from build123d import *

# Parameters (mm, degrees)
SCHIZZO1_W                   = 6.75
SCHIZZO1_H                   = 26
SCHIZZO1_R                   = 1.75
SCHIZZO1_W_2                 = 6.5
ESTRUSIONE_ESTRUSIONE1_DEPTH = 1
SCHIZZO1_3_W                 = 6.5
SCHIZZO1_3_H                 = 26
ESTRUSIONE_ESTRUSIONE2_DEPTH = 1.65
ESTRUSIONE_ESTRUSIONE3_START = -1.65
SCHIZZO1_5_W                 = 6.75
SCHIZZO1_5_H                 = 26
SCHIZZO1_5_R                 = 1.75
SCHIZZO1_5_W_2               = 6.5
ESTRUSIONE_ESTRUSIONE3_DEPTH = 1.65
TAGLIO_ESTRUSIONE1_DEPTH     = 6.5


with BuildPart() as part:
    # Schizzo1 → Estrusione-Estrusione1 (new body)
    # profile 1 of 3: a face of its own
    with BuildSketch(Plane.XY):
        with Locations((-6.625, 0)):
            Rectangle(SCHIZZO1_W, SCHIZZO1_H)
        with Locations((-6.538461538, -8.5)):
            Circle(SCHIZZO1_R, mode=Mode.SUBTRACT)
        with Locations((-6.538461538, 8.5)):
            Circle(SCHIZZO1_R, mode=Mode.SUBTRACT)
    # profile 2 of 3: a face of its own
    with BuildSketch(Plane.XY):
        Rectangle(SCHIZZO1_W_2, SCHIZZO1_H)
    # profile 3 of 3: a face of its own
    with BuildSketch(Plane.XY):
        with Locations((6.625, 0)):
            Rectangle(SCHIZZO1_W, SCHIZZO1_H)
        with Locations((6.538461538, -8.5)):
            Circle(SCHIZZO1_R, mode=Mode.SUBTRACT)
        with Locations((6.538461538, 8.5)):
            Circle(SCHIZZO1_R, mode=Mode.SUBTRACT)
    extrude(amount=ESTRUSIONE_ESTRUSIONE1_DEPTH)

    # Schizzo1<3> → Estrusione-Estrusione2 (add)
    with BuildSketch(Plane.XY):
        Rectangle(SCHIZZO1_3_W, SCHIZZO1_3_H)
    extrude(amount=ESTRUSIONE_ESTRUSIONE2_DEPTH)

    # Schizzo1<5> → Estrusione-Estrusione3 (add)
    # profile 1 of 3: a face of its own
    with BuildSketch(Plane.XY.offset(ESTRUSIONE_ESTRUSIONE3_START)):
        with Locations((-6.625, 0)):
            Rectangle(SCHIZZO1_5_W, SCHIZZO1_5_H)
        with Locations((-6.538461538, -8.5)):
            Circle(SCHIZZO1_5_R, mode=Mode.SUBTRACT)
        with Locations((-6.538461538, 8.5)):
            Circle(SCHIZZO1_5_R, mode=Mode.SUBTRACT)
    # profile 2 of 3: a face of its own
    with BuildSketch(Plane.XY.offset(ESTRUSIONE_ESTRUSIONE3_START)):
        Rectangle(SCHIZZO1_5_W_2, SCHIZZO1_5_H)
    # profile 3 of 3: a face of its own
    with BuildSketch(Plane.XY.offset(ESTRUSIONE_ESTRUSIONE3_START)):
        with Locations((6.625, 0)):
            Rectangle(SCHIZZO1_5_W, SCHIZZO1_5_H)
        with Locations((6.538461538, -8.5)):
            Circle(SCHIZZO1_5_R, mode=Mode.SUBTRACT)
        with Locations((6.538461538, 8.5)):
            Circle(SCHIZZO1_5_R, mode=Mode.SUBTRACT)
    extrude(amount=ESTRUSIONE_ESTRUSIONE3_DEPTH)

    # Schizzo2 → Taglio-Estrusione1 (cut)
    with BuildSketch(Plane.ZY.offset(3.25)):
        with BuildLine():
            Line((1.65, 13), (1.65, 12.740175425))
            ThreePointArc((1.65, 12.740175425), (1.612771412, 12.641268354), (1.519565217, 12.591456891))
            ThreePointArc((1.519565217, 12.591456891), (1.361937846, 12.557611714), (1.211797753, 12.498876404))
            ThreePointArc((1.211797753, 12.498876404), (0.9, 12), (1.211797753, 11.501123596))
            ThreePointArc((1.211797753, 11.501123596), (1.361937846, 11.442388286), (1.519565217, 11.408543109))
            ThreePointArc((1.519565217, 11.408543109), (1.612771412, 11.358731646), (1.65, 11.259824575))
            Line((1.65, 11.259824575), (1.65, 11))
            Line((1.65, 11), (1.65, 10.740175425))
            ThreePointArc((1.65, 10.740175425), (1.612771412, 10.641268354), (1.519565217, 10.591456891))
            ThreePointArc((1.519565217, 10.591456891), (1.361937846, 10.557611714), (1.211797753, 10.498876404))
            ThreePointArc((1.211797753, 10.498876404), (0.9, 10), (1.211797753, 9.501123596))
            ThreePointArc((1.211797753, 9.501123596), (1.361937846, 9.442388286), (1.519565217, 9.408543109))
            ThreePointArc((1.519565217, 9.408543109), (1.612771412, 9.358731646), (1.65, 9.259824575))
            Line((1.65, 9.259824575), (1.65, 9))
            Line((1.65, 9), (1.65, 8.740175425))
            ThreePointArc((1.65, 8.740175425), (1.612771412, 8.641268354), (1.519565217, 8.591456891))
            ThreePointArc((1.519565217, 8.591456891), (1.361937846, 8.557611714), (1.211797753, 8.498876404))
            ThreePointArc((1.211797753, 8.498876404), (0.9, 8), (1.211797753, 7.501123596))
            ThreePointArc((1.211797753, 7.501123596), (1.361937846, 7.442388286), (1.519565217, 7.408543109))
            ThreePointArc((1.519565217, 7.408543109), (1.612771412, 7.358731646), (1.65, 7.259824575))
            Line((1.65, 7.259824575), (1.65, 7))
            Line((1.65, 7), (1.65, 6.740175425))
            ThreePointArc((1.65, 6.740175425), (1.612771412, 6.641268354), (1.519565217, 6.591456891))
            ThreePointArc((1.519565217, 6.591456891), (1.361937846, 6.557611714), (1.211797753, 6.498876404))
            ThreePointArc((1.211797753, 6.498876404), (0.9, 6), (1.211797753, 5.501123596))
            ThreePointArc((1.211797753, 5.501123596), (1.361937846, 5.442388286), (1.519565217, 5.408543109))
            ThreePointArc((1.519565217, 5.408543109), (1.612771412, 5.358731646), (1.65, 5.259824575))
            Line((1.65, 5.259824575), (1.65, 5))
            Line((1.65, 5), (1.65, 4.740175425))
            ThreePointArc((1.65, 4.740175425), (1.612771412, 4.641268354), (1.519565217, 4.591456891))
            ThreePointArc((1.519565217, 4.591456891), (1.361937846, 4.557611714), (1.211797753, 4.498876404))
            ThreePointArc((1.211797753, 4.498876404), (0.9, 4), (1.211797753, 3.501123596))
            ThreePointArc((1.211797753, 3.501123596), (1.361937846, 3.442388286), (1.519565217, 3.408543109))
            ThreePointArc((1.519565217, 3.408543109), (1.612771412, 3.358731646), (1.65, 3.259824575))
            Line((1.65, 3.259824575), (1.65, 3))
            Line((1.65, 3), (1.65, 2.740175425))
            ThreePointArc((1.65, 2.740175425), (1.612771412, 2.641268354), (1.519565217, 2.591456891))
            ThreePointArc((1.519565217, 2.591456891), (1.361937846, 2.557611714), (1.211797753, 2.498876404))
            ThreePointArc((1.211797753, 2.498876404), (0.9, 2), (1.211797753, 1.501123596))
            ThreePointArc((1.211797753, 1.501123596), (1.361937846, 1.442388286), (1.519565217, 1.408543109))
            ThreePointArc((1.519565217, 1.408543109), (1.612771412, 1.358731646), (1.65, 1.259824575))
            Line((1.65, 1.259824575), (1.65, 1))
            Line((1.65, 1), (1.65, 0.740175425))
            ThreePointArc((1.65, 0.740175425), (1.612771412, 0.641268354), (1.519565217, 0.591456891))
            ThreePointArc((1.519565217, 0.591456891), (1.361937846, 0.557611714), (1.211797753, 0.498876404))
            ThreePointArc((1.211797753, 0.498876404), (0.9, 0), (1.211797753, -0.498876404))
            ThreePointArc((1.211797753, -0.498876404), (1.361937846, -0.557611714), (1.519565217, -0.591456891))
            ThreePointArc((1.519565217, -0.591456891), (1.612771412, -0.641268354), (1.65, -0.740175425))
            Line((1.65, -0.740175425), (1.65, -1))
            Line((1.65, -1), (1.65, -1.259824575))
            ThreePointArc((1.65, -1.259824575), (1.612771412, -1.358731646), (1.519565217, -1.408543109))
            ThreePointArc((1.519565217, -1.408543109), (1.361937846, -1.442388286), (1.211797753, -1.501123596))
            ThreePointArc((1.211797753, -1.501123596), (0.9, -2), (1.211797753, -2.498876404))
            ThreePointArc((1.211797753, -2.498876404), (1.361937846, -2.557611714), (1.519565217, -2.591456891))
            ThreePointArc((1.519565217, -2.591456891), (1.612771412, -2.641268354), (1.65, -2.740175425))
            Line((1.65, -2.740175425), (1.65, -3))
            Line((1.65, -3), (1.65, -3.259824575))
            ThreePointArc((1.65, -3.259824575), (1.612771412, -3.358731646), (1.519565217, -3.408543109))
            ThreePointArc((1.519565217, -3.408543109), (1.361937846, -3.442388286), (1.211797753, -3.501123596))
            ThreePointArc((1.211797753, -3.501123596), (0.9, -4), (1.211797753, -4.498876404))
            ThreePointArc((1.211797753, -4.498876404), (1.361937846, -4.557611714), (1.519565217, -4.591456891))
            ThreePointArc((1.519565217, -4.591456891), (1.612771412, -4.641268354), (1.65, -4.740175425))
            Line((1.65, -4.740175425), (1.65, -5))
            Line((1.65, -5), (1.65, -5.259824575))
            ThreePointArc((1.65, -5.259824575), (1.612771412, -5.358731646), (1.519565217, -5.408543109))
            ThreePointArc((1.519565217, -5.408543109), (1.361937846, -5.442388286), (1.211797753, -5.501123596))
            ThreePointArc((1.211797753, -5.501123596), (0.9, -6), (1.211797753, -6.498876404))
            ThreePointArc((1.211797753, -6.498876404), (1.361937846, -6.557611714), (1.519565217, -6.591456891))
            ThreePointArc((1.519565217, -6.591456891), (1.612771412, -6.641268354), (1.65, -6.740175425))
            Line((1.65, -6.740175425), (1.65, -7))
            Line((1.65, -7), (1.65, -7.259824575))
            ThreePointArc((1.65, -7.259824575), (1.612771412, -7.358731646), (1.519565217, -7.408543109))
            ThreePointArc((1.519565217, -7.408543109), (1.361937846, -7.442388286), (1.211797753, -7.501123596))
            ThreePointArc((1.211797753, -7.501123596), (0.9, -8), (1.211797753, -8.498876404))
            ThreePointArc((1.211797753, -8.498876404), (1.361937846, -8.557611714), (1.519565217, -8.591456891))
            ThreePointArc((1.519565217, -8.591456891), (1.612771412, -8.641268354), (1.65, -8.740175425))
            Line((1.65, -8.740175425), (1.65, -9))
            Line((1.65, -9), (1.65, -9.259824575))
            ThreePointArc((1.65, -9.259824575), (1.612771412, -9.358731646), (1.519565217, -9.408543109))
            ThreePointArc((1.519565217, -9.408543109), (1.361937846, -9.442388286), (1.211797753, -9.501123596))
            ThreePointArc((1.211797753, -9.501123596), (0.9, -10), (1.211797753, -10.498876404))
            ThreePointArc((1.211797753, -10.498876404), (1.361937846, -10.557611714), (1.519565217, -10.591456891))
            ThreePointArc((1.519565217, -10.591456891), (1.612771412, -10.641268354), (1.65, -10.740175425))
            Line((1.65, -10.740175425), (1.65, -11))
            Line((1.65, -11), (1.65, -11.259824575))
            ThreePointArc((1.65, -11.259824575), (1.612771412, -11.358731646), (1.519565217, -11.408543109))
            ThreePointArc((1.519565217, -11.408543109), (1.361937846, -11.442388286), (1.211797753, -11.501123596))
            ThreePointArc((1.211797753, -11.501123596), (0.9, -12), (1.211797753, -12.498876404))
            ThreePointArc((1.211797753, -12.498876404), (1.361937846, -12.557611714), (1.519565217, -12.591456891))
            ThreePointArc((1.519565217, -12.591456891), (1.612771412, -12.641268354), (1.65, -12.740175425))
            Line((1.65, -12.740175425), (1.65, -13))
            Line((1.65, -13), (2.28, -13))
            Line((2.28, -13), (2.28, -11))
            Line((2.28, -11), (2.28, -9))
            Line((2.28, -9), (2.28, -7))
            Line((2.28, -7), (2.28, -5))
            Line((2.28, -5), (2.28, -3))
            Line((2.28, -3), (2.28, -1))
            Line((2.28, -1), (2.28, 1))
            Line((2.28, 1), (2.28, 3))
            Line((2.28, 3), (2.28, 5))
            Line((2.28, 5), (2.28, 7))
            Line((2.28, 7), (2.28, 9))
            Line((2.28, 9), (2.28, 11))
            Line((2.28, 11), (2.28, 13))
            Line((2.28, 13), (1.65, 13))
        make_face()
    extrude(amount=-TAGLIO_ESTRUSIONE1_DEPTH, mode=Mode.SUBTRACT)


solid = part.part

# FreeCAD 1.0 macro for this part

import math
import FreeCAD as App
import Part
import Sketcher
Q = App.Units.Quantity


def add_polygon(sketch, points):
    """Adds a closed chain of lines whose ends are joined by coincident constraints."""
    first, n = sketch.GeometryCount, len(points)
    for a, b in zip(points, points[1:] + points[:1]):
        sketch.addGeometry(Part.LineSegment(App.Vector(*a, 0), App.Vector(*b, 0)), False)
    for i in range(n):
        sketch.addConstraint(Sketcher.Constraint("Coincident", first + i, 2, first + (i + 1) % n, 1))

doc = App.newDocument("Part")
body = doc.addObject("PartDesign::Body", "Body")

# Sketch on XY plane
sketch1 = body.newObject("Sketcher::SketchObject", "Sketch")
sketch1.AttachmentSupport = (doc.getObject("XY_Plane"), [""])
sketch1.MapMode = "FlatFace"
add_polygon(sketch1, [(-10, 13), (-10, -13), (10, -13), (10, 13)])  # lines 0-3
sketch1.addGeometry(Part.Circle(App.Vector(-6.5, -8.5, 0), App.Vector(0, 0, 1), 1.8), False)  # 4
sketch1.addGeometry(Part.Circle(App.Vector(-6.5, 8.5, 0), App.Vector(0, 0, 1), 1.8), False)  # 5
sketch1.addGeometry(Part.Circle(App.Vector(6.5, 8.5, 0), App.Vector(0, 0, 1), 1.8), False)  # 6
sketch1.addGeometry(Part.Circle(App.Vector(6.5, -8.5, 0), App.Vector(0, 0, 1), 1.8), False)  # 7
sketch1.addConstraint([
    Sketcher.Constraint("Vertical", 0),
    Sketcher.Constraint("Horizontal", 1),
    Sketcher.Constraint("Vertical", 2),
    Sketcher.Constraint("Horizontal", 3),
    Sketcher.Constraint("Equal", 4, 5),
    Sketcher.Constraint("Equal", 5, 6),
    Sketcher.Constraint("Equal", 6, 7),
    Sketcher.Constraint("Symmetric", 4, 3, 6, 3, -1, 1),
    Sketcher.Constraint("Symmetric", 5, 3, 7, 3, -1, 1),
    Sketcher.Constraint("Symmetric", 0, 2, 2, 2, -1, 1),
    Sketcher.Constraint("Symmetric", 5, 3, 6, 3, -2),
    Sketcher.Constraint("Diameter", 4, Q("3.5 mm")),
    Sketcher.Constraint("DistanceX", 1, 1, 1, 2, Q("20 mm")),
    Sketcher.Constraint("DistanceY", 0, 2, 0, 1, Q("26 mm")),
    Sketcher.Constraint("DistanceY", 4, 3, 5, 3, Q("17 mm")),
    Sketcher.Constraint("DistanceX", 4, 3, -1, 1, Q("6.538462 mm")),
])
pad1 = body.newObject("PartDesign::Pad", "Pad")
pad1.Profile = sketch1
pad1.Length = 1

# Sketch on XY plane
sketch2 = body.newObject("Sketcher::SketchObject", "Sketch001")
sketch2.AttachmentSupport = (doc.getObject("XY_Plane"), [""])
sketch2.MapMode = "FlatFace"
add_polygon(sketch2, [(-3, 13), (-3, -13), (3, -13), (3, 13)])  # lines 0-3
sketch2.addConstraint([
    Sketcher.Constraint("Vertical", 0),
    Sketcher.Constraint("Horizontal", 1),
    Sketcher.Constraint("Vertical", 2),
    Sketcher.Constraint("Horizontal", 3),
    Sketcher.Constraint("Symmetric", 0, 2, 2, 2, -1, 1),
    Sketcher.Constraint("DistanceY", 0, 2, 0, 1, Q("26 mm")),
    Sketcher.Constraint("DistanceX", 1, 1, 1, 2, Q("6.5 mm")),
])
pad2 = body.newObject("PartDesign::Pad", "Pad001")
pad2.Profile = sketch2
pad2.Length = 1.65

# Sketch on XY plane
sketch3 = body.newObject("Sketcher::SketchObject", "Sketch002")
sketch3.AttachmentSupport = (doc.getObject("XY_Plane"), [""])
sketch3.MapMode = "FlatFace"
sketch3.AttachmentOffset = App.Placement(App.Vector(0, 0, -1.65), App.Rotation())
add_polygon(sketch3, [(-10, 13), (-10, -13), (10, -13), (10, 13)])  # lines 0-3
sketch3.addGeometry(Part.Circle(App.Vector(-6.5, -8.5, 0), App.Vector(0, 0, 1), 1.8), False)  # 4
sketch3.addGeometry(Part.Circle(App.Vector(-6.5, 8.5, 0), App.Vector(0, 0, 1), 1.8), False)  # 5
sketch3.addGeometry(Part.Circle(App.Vector(6.5, 8.5, 0), App.Vector(0, 0, 1), 1.8), False)  # 6
sketch3.addGeometry(Part.Circle(App.Vector(6.5, -8.5, 0), App.Vector(0, 0, 1), 1.8), False)  # 7
sketch3.addConstraint([
    Sketcher.Constraint("Vertical", 0),
    Sketcher.Constraint("Horizontal", 1),
    Sketcher.Constraint("Vertical", 2),
    Sketcher.Constraint("Horizontal", 3),
    Sketcher.Constraint("Equal", 4, 5),
    Sketcher.Constraint("Equal", 5, 6),
    Sketcher.Constraint("Equal", 6, 7),
    Sketcher.Constraint("Symmetric", 4, 3, 6, 3, -1, 1),
    Sketcher.Constraint("Symmetric", 5, 3, 7, 3, -1, 1),
    Sketcher.Constraint("Symmetric", 0, 2, 2, 2, -1, 1),
    Sketcher.Constraint("Symmetric", 5, 3, 6, 3, -2),
    Sketcher.Constraint("Diameter", 4, Q("3.5 mm")),
    Sketcher.Constraint("DistanceX", 1, 1, 1, 2, Q("20 mm")),
    Sketcher.Constraint("DistanceY", 0, 2, 0, 1, Q("26 mm")),
    Sketcher.Constraint("DistanceY", 4, 3, 5, 3, Q("17 mm")),
    Sketcher.Constraint("DistanceX", 4, 3, -1, 1, Q("6.538462 mm")),
])
pad3 = body.newObject("PartDesign::Pad", "Pad002")
pad3.Profile = sketch3
pad3.Length = 1.65

# Sketch on YZ plane
sketch4 = body.newObject("Sketcher::SketchObject", "Sketch003")
sketch4.AttachmentSupport = (doc.getObject("YZ_Plane"), [""])
sketch4.MapMode = "FlatFace"
sketch4.AttachmentOffset = App.Placement(App.Vector(0, 0, -3.25), App.Rotation())
sketch4.addGeometry([
    Part.LineSegment(App.Vector(13, 1.65, 0), App.Vector(12.74, 1.65, 0)),  # 0
    Part.ArcOfCircle(Part.Circle(App.Vector(12.74, 1.5, 0), App.Vector(0, 0, 1), 0.15), math.radians(90), math.radians(173)),  # 1
    Part.ArcOfCircle(Part.Circle(App.Vector(11.6, 1.65, 0), App.Vector(0, 0, 1), 1), math.radians(-25.99), math.radians(-7.49)),  # 2
    Part.ArcOfCircle(Part.Circle(App.Vector(12, 1.45, 0), App.Vector(0, 0, 1), 0.55), math.radians(-154), math.radians(-26)),  # 3
    Part.ArcOfCircle(Part.Circle(App.Vector(12.4, 1.65, 0), App.Vector(0, 0, 1), 1), math.radians(-172.51), math.radians(-154.01)),  # 4
    Part.ArcOfCircle(Part.Circle(App.Vector(11.26, 1.5, 0), App.Vector(0, 0, 1), 0.15), math.radians(7), math.radians(90)),  # 5
    Part.LineSegment(App.Vector(11.26, 1.65, 0), App.Vector(10.74, 1.65, 0)),  # 6
    Part.ArcOfCircle(Part.Circle(App.Vector(10.74, 1.5, 0), App.Vector(0, 0, 1), 0.15), math.radians(90), math.radians(173)),  # 7
    Part.ArcOfCircle(Part.Circle(App.Vector(9.6, 1.65, 0), App.Vector(0, 0, 1), 1), math.radians(-25.99), math.radians(-7.49)),  # 8
    Part.ArcOfCircle(Part.Circle(App.Vector(10, 1.45, 0), App.Vector(0, 0, 1), 0.55), math.radians(-154), math.radians(-26)),  # 9
    Part.ArcOfCircle(Part.Circle(App.Vector(10.4, 1.65, 0), App.Vector(0, 0, 1), 1), math.radians(-172.51), math.radians(-154.01)),  # 10
    Part.ArcOfCircle(Part.Circle(App.Vector(9.26, 1.5, 0), App.Vector(0, 0, 1), 0.15), math.radians(7), math.radians(90)),  # 11
    Part.LineSegment(App.Vector(9.26, 1.65, 0), App.Vector(8.74, 1.65, 0)),  # 12
    Part.ArcOfCircle(Part.Circle(App.Vector(8.74, 1.5, 0), App.Vector(0, 0, 1), 0.15), math.radians(90), math.radians(173)),  # 13
    Part.ArcOfCircle(Part.Circle(App.Vector(7.6, 1.65, 0), App.Vector(0, 0, 1), 1), math.radians(-25.99), math.radians(-7.49)),  # 14
    Part.ArcOfCircle(Part.Circle(App.Vector(8, 1.45, 0), App.Vector(0, 0, 1), 0.55), math.radians(-154), math.radians(-26)),  # 15
    Part.ArcOfCircle(Part.Circle(App.Vector(8.4, 1.65, 0), App.Vector(0, 0, 1), 1), math.radians(-172.51), math.radians(-154.01)),  # 16
    Part.ArcOfCircle(Part.Circle(App.Vector(7.26, 1.5, 0), App.Vector(0, 0, 1), 0.15), math.radians(7), math.radians(90)),  # 17
    Part.LineSegment(App.Vector(7.26, 1.65, 0), App.Vector(6.74, 1.65, 0)),  # 18
    Part.ArcOfCircle(Part.Circle(App.Vector(6.74, 1.5, 0), App.Vector(0, 0, 1), 0.15), math.radians(90), math.radians(173)),  # 19
    Part.ArcOfCircle(Part.Circle(App.Vector(5.6, 1.65, 0), App.Vector(0, 0, 1), 1), math.radians(-25.99), math.radians(-7.49)),  # 20
    Part.ArcOfCircle(Part.Circle(App.Vector(6, 1.45, 0), App.Vector(0, 0, 1), 0.55), math.radians(-154), math.radians(-26)),  # 21
    Part.ArcOfCircle(Part.Circle(App.Vector(6.4, 1.65, 0), App.Vector(0, 0, 1), 1), math.radians(-172.51), math.radians(-154.01)),  # 22
    Part.ArcOfCircle(Part.Circle(App.Vector(5.26, 1.5, 0), App.Vector(0, 0, 1), 0.15), math.radians(7), math.radians(90)),  # 23
    Part.LineSegment(App.Vector(5.26, 1.65, 0), App.Vector(4.74, 1.65, 0)),  # 24
    Part.ArcOfCircle(Part.Circle(App.Vector(4.74, 1.5, 0), App.Vector(0, 0, 1), 0.15), math.radians(90), math.radians(173)),  # 25
    Part.ArcOfCircle(Part.Circle(App.Vector(3.6, 1.65, 0), App.Vector(0, 0, 1), 1), math.radians(-25.99), math.radians(-7.49)),  # 26
    Part.ArcOfCircle(Part.Circle(App.Vector(4, 1.45, 0), App.Vector(0, 0, 1), 0.55), math.radians(-154), math.radians(-26)),  # 27
    Part.ArcOfCircle(Part.Circle(App.Vector(4.4, 1.65, 0), App.Vector(0, 0, 1), 1), math.radians(-172.51), math.radians(-154.01)),  # 28
    Part.ArcOfCircle(Part.Circle(App.Vector(3.26, 1.5, 0), App.Vector(0, 0, 1), 0.15), math.radians(7), math.radians(90)),  # 29
    Part.LineSegment(App.Vector(3.26, 1.65, 0), App.Vector(2.74, 1.65, 0)),  # 30
    Part.ArcOfCircle(Part.Circle(App.Vector(2.74, 1.5, 0), App.Vector(0, 0, 1), 0.15), math.radians(90), math.radians(173)),  # 31
    Part.ArcOfCircle(Part.Circle(App.Vector(1.6, 1.65, 0), App.Vector(0, 0, 1), 1), math.radians(-25.99), math.radians(-7.49)),  # 32
    Part.ArcOfCircle(Part.Circle(App.Vector(2, 1.45, 0), App.Vector(0, 0, 1), 0.55), math.radians(-154), math.radians(-26)),  # 33
    Part.ArcOfCircle(Part.Circle(App.Vector(2.4, 1.65, 0), App.Vector(0, 0, 1), 1), math.radians(-172.51), math.radians(-154.01)),  # 34
    Part.ArcOfCircle(Part.Circle(App.Vector(1.26, 1.5, 0), App.Vector(0, 0, 1), 0.15), math.radians(7), math.radians(90)),  # 35
    Part.LineSegment(App.Vector(1.26, 1.65, 0), App.Vector(0.74, 1.65, 0)),  # 36
    Part.ArcOfCircle(Part.Circle(App.Vector(0.74, 1.5, 0), App.Vector(0, 0, 1), 0.15), math.radians(90), math.radians(173)),  # 37
    Part.ArcOfCircle(Part.Circle(App.Vector(-0.4, 1.65, 0), App.Vector(0, 0, 1), 1), math.radians(-25.99), math.radians(-7.49)),  # 38
    Part.ArcOfCircle(Part.Circle(App.Vector(0, 1.45, 0), App.Vector(0, 0, 1), 0.55), math.radians(-154), math.radians(-26)),  # 39
    Part.ArcOfCircle(Part.Circle(App.Vector(0.4, 1.65, 0), App.Vector(0, 0, 1), 1), math.radians(-172.51), math.radians(-154.01)),  # 40
    Part.ArcOfCircle(Part.Circle(App.Vector(-0.74, 1.5, 0), App.Vector(0, 0, 1), 0.15), math.radians(7), math.radians(90)),  # 41
    Part.LineSegment(App.Vector(-0.74, 1.65, 0), App.Vector(-1.26, 1.65, 0)),  # 42
    Part.ArcOfCircle(Part.Circle(App.Vector(-1.26, 1.5, 0), App.Vector(0, 0, 1), 0.15), math.radians(90), math.radians(173)),  # 43
    Part.ArcOfCircle(Part.Circle(App.Vector(-2.4, 1.65, 0), App.Vector(0, 0, 1), 1), math.radians(-25.99), math.radians(-7.49)),  # 44
    Part.ArcOfCircle(Part.Circle(App.Vector(-2, 1.45, 0), App.Vector(0, 0, 1), 0.55), math.radians(-154), math.radians(-26)),  # 45
    Part.ArcOfCircle(Part.Circle(App.Vector(-1.6, 1.65, 0), App.Vector(0, 0, 1), 1), math.radians(-172.51), math.radians(-154.01)),  # 46
    Part.ArcOfCircle(Part.Circle(App.Vector(-2.74, 1.5, 0), App.Vector(0, 0, 1), 0.15), math.radians(7), math.radians(90)),  # 47
    Part.LineSegment(App.Vector(-2.74, 1.65, 0), App.Vector(-3.26, 1.65, 0)),  # 48
    Part.ArcOfCircle(Part.Circle(App.Vector(-3.26, 1.5, 0), App.Vector(0, 0, 1), 0.15), math.radians(90), math.radians(173)),  # 49
    Part.ArcOfCircle(Part.Circle(App.Vector(-4.4, 1.65, 0), App.Vector(0, 0, 1), 1), math.radians(-25.99), math.radians(-7.49)),  # 50
    Part.ArcOfCircle(Part.Circle(App.Vector(-4, 1.45, 0), App.Vector(0, 0, 1), 0.55), math.radians(-154), math.radians(-26)),  # 51
    Part.ArcOfCircle(Part.Circle(App.Vector(-3.6, 1.65, 0), App.Vector(0, 0, 1), 1), math.radians(-172.51), math.radians(-154.01)),  # 52
    Part.ArcOfCircle(Part.Circle(App.Vector(-4.74, 1.5, 0), App.Vector(0, 0, 1), 0.15), math.radians(7), math.radians(90)),  # 53
    Part.LineSegment(App.Vector(-4.74, 1.65, 0), App.Vector(-5.26, 1.65, 0)),  # 54
    Part.ArcOfCircle(Part.Circle(App.Vector(-5.26, 1.5, 0), App.Vector(0, 0, 1), 0.15), math.radians(90), math.radians(173)),  # 55
    Part.ArcOfCircle(Part.Circle(App.Vector(-6.4, 1.65, 0), App.Vector(0, 0, 1), 1), math.radians(-25.99), math.radians(-7.49)),  # 56
    Part.ArcOfCircle(Part.Circle(App.Vector(-6, 1.45, 0), App.Vector(0, 0, 1), 0.55), math.radians(-154), math.radians(-26)),  # 57
    Part.ArcOfCircle(Part.Circle(App.Vector(-5.6, 1.65, 0), App.Vector(0, 0, 1), 1), math.radians(-172.51), math.radians(-154.01)),  # 58
    Part.ArcOfCircle(Part.Circle(App.Vector(-6.74, 1.5, 0), App.Vector(0, 0, 1), 0.15), math.radians(7), math.radians(90)),  # 59
    Part.LineSegment(App.Vector(-6.74, 1.65, 0), App.Vector(-7.26, 1.65, 0)),  # 60
    Part.ArcOfCircle(Part.Circle(App.Vector(-7.26, 1.5, 0), App.Vector(0, 0, 1), 0.15), math.radians(90), math.radians(173)),  # 61
    Part.ArcOfCircle(Part.Circle(App.Vector(-8.4, 1.65, 0), App.Vector(0, 0, 1), 1), math.radians(-25.99), math.radians(-7.49)),  # 62
    Part.ArcOfCircle(Part.Circle(App.Vector(-8, 1.45, 0), App.Vector(0, 0, 1), 0.55), math.radians(-154), math.radians(-26)),  # 63
    Part.ArcOfCircle(Part.Circle(App.Vector(-7.6, 1.65, 0), App.Vector(0, 0, 1), 1), math.radians(-172.51), math.radians(-154.01)),  # 64
    Part.ArcOfCircle(Part.Circle(App.Vector(-8.74, 1.5, 0), App.Vector(0, 0, 1), 0.15), math.radians(7), math.radians(90)),  # 65
    Part.LineSegment(App.Vector(-8.74, 1.65, 0), App.Vector(-9.26, 1.65, 0)),  # 66
    Part.ArcOfCircle(Part.Circle(App.Vector(-9.26, 1.5, 0), App.Vector(0, 0, 1), 0.15), math.radians(90), math.radians(173)),  # 67
    Part.ArcOfCircle(Part.Circle(App.Vector(-10.4, 1.65, 0), App.Vector(0, 0, 1), 1), math.radians(-25.99), math.radians(-7.49)),  # 68
    Part.ArcOfCircle(Part.Circle(App.Vector(-10, 1.45, 0), App.Vector(0, 0, 1), 0.55), math.radians(-154), math.radians(-26)),  # 69
    Part.ArcOfCircle(Part.Circle(App.Vector(-9.6, 1.65, 0), App.Vector(0, 0, 1), 1), math.radians(-172.51), math.radians(-154.01)),  # 70
    Part.ArcOfCircle(Part.Circle(App.Vector(-10.74, 1.5, 0), App.Vector(0, 0, 1), 0.15), math.radians(7), math.radians(90)),  # 71
    Part.LineSegment(App.Vector(-10.74, 1.65, 0), App.Vector(-11.26, 1.65, 0)),  # 72
    Part.ArcOfCircle(Part.Circle(App.Vector(-11.26, 1.5, 0), App.Vector(0, 0, 1), 0.15), math.radians(90), math.radians(173)),  # 73
    Part.ArcOfCircle(Part.Circle(App.Vector(-12.4, 1.65, 0), App.Vector(0, 0, 1), 1), math.radians(-25.99), math.radians(-7.49)),  # 74
    Part.ArcOfCircle(Part.Circle(App.Vector(-12, 1.45, 0), App.Vector(0, 0, 1), 0.55), math.radians(-154), math.radians(-26)),  # 75
    Part.ArcOfCircle(Part.Circle(App.Vector(-11.6, 1.65, 0), App.Vector(0, 0, 1), 1), math.radians(-172.51), math.radians(-154.01)),  # 76
    Part.ArcOfCircle(Part.Circle(App.Vector(-12.74, 1.5, 0), App.Vector(0, 0, 1), 0.15), math.radians(7), math.radians(90)),  # 77
    Part.LineSegment(App.Vector(-12.74, 1.65, 0), App.Vector(-13, 1.65, 0)),  # 78
    Part.LineSegment(App.Vector(-13, 1.65, 0), App.Vector(-13, 2.28, 0)),  # 79
    Part.LineSegment(App.Vector(-13, 2.28, 0), App.Vector(13, 2.28, 0)),  # 80
    Part.LineSegment(App.Vector(13, 2.28, 0), App.Vector(13, 1.65, 0)),  # 81
], False)
sketch4.addConstraint([
    Sketcher.Constraint("Tangent", 0, 2, 1, 1),
    Sketcher.Constraint("Tangent", 1, 2, 2, 2),
    Sketcher.Constraint("Tangent", 2, 1, 3, 2),
    Sketcher.Constraint("Tangent", 3, 1, 4, 2),
    Sketcher.Constraint("Tangent", 4, 1, 5, 1),
    Sketcher.Constraint("Tangent", 5, 2, 6, 1),
    Sketcher.Constraint("Tangent", 6, 2, 7, 1),
    Sketcher.Constraint("Tangent", 7, 2, 8, 2),
    Sketcher.Constraint("Tangent", 8, 1, 9, 2),
    Sketcher.Constraint("Tangent", 9, 1, 10, 2),
    Sketcher.Constraint("Tangent", 10, 1, 11, 1),
    Sketcher.Constraint("Tangent", 11, 2, 12, 1),
    Sketcher.Constraint("Tangent", 12, 2, 13, 1),
    Sketcher.Constraint("Tangent", 13, 2, 14, 2),
    Sketcher.Constraint("Tangent", 14, 1, 15, 2),
    Sketcher.Constraint("Tangent", 15, 1, 16, 2),
    Sketcher.Constraint("Tangent", 16, 1, 17, 1),
    Sketcher.Constraint("Tangent", 17, 2, 18, 1),
    Sketcher.Constraint("Tangent", 18, 2, 19, 1),
    Sketcher.Constraint("Tangent", 19, 2, 20, 2),
    Sketcher.Constraint("Tangent", 20, 1, 21, 2),
    Sketcher.Constraint("Tangent", 21, 1, 22, 2),
    Sketcher.Constraint("Tangent", 22, 1, 23, 1),
    Sketcher.Constraint("Tangent", 23, 2, 24, 1),
    Sketcher.Constraint("Tangent", 24, 2, 25, 1),
    Sketcher.Constraint("Tangent", 25, 2, 26, 2),
    Sketcher.Constraint("Tangent", 26, 1, 27, 2),
    Sketcher.Constraint("Tangent", 27, 1, 28, 2),
    Sketcher.Constraint("Tangent", 28, 1, 29, 1),
    Sketcher.Constraint("Tangent", 29, 2, 30, 1),
    Sketcher.Constraint("Tangent", 30, 2, 31, 1),
    Sketcher.Constraint("Tangent", 31, 2, 32, 2),
    Sketcher.Constraint("Tangent", 32, 1, 33, 2),
    Sketcher.Constraint("Tangent", 33, 1, 34, 2),
    Sketcher.Constraint("Tangent", 34, 1, 35, 1),
    Sketcher.Constraint("Tangent", 35, 2, 36, 1),
    Sketcher.Constraint("Tangent", 36, 2, 37, 1),
    Sketcher.Constraint("Tangent", 37, 2, 38, 2),
    Sketcher.Constraint("Tangent", 38, 1, 39, 2),
    Sketcher.Constraint("Tangent", 39, 1, 40, 2),
    Sketcher.Constraint("Tangent", 40, 1, 41, 1),
    Sketcher.Constraint("Tangent", 41, 2, 42, 1),
    Sketcher.Constraint("Tangent", 42, 2, 43, 1),
    Sketcher.Constraint("Tangent", 43, 2, 44, 2),
    Sketcher.Constraint("Tangent", 44, 1, 45, 2),
    Sketcher.Constraint("Tangent", 45, 1, 46, 2),
    Sketcher.Constraint("Tangent", 46, 1, 47, 1),
    Sketcher.Constraint("Tangent", 47, 2, 48, 1),
    Sketcher.Constraint("Tangent", 48, 2, 49, 1),
    Sketcher.Constraint("Tangent", 49, 2, 50, 2),
    Sketcher.Constraint("Tangent", 50, 1, 51, 2),
    Sketcher.Constraint("Tangent", 51, 1, 52, 2),
    Sketcher.Constraint("Tangent", 52, 1, 53, 1),
    Sketcher.Constraint("Tangent", 53, 2, 54, 1),
    Sketcher.Constraint("Tangent", 54, 2, 55, 1),
    Sketcher.Constraint("Tangent", 55, 2, 56, 2),
    Sketcher.Constraint("Tangent", 56, 1, 57, 2),
    Sketcher.Constraint("Tangent", 57, 1, 58, 2),
    Sketcher.Constraint("Tangent", 58, 1, 59, 1),
    Sketcher.Constraint("Tangent", 59, 2, 60, 1),
    Sketcher.Constraint("Tangent", 60, 2, 61, 1),
    Sketcher.Constraint("Tangent", 61, 2, 62, 2),
    Sketcher.Constraint("Tangent", 62, 1, 63, 2),
    Sketcher.Constraint("Tangent", 63, 1, 64, 2),
    Sketcher.Constraint("Tangent", 64, 1, 65, 1),
    Sketcher.Constraint("Tangent", 65, 2, 66, 1),
    Sketcher.Constraint("Tangent", 66, 2, 67, 1),
    Sketcher.Constraint("Tangent", 67, 2, 68, 2),
    Sketcher.Constraint("Tangent", 68, 1, 69, 2),
    Sketcher.Constraint("Tangent", 69, 1, 70, 2),
    Sketcher.Constraint("Tangent", 70, 1, 71, 1),
    Sketcher.Constraint("Tangent", 71, 2, 72, 1),
    Sketcher.Constraint("Tangent", 72, 2, 73, 1),
    Sketcher.Constraint("Tangent", 73, 2, 74, 2),
    Sketcher.Constraint("Tangent", 74, 1, 75, 2),
    Sketcher.Constraint("Tangent", 75, 1, 76, 2),
    Sketcher.Constraint("Tangent", 76, 1, 77, 1),
    Sketcher.Constraint("Tangent", 77, 2, 78, 1),
    Sketcher.Constraint("Coincident", 78, 2, 79, 1),
    Sketcher.Constraint("Coincident", 79, 2, 80, 1),
    Sketcher.Constraint("Coincident", 80, 2, 81, 1),
    Sketcher.Constraint("Coincident", 81, 2, 0, 1),
    Sketcher.Constraint("Horizontal", 0),
    Sketcher.Constraint("Horizontal", 6),
    Sketcher.Constraint("Horizontal", 12),
    Sketcher.Constraint("Horizontal", 18),
    Sketcher.Constraint("Horizontal", 24),
    Sketcher.Constraint("Horizontal", 30),
    Sketcher.Constraint("Horizontal", 36),
    Sketcher.Constraint("Horizontal", 42),
    Sketcher.Constraint("Horizontal", 48),
    Sketcher.Constraint("Horizontal", 54),
    Sketcher.Constraint("Horizontal", 60),
    Sketcher.Constraint("Horizontal", 66),
    Sketcher.Constraint("Horizontal", 72),
    Sketcher.Constraint("Horizontal", 78),
    Sketcher.Constraint("Vertical", 79),
    Sketcher.Constraint("Horizontal", 80),
    Sketcher.Constraint("Vertical", 81),
    Sketcher.Constraint("Equal", 2, 4),
    Sketcher.Constraint("Equal", 1, 5),
    Sketcher.Constraint("Equal", 5, 7),
    Sketcher.Constraint("Equal", 4, 8),
    Sketcher.Constraint("Equal", 3, 9),
    Sketcher.Constraint("Equal", 8, 10),
    Sketcher.Constraint("Equal", 7, 11),
    Sketcher.Constraint("Equal", 11, 13),
    Sketcher.Constraint("Equal", 10, 14),
    Sketcher.Constraint("Equal", 9, 15),
    Sketcher.Constraint("Equal", 14, 16),
    Sketcher.Constraint("Equal", 13, 17),
    Sketcher.Constraint("Equal", 17, 19),
    Sketcher.Constraint("Equal", 16, 20),
    Sketcher.Constraint("Equal", 15, 21),
    Sketcher.Constraint("Equal", 20, 22),
    Sketcher.Constraint("Equal", 19, 23),
    Sketcher.Constraint("Equal", 23, 25),
    Sketcher.Constraint("Equal", 22, 26),
    Sketcher.Constraint("Equal", 21, 27),
    Sketcher.Constraint("Equal", 26, 28),
    Sketcher.Constraint("Equal", 25, 29),
    Sketcher.Constraint("Equal", 29, 31),
    Sketcher.Constraint("Equal", 28, 32),
    Sketcher.Constraint("Equal", 27, 33),
    Sketcher.Constraint("Equal", 32, 34),
    Sketcher.Constraint("Equal", 31, 35),
    Sketcher.Constraint("Equal", 35, 37),
    Sketcher.Constraint("Equal", 34, 38),
    Sketcher.Constraint("Equal", 33, 39),
    Sketcher.Constraint("Equal", 38, 40),
    Sketcher.Constraint("Equal", 37, 41),
    Sketcher.Constraint("Equal", 41, 43),
    Sketcher.Constraint("Equal", 40, 44),
    Sketcher.Constraint("Equal", 39, 45),
    Sketcher.Constraint("Equal", 44, 46),
    Sketcher.Constraint("Equal", 43, 47),
    Sketcher.Constraint("Equal", 47, 49),
    Sketcher.Constraint("Equal", 46, 50),
    Sketcher.Constraint("Equal", 45, 51),
    Sketcher.Constraint("Equal", 50, 52),
    Sketcher.Constraint("Equal", 49, 53),
    Sketcher.Constraint("Equal", 53, 55),
    Sketcher.Constraint("Equal", 52, 56),
    Sketcher.Constraint("Equal", 51, 57),
    Sketcher.Constraint("Equal", 56, 58),
    Sketcher.Constraint("Equal", 55, 59),
    Sketcher.Constraint("Equal", 59, 61),
    Sketcher.Constraint("Equal", 58, 62),
    Sketcher.Constraint("Equal", 57, 63),
    Sketcher.Constraint("Equal", 62, 64),
    Sketcher.Constraint("Equal", 61, 65),
    Sketcher.Constraint("Equal", 65, 67),
    Sketcher.Constraint("Equal", 64, 68),
    Sketcher.Constraint("Equal", 63, 69),
    Sketcher.Constraint("Equal", 68, 70),
    Sketcher.Constraint("Equal", 67, 71),
    Sketcher.Constraint("Equal", 71, 73),
    Sketcher.Constraint("Equal", 70, 74),
    Sketcher.Constraint("Equal", 69, 75),
    Sketcher.Constraint("Equal", 74, 76),
    Sketcher.Constraint("Equal", 73, 77),
    Sketcher.Constraint("Symmetric", 38, 3, 40, 3, -2),
    Sketcher.Constraint("Symmetric", 35, 3, 43, 3, -2),
    Sketcher.Constraint("Symmetric", 33, 3, 45, 3, -2),
    Sketcher.Constraint("Symmetric", 31, 3, 47, 3, -2),
    Sketcher.Constraint("Symmetric", 28, 3, 50, 3, -2),
    Sketcher.Constraint("Symmetric", 26, 3, 52, 3, -2),
    Sketcher.Constraint("Symmetric", 23, 3, 55, 3, -2),
    Sketcher.Constraint("Symmetric", 21, 3, 57, 3, -2),
    Sketcher.Constraint("Symmetric", 19, 3, 59, 3, -2),
    Sketcher.Constraint("Symmetric", 16, 3, 62, 3, -2),
    Sketcher.Constraint("Symmetric", 14, 3, 64, 3, -2),
    Sketcher.Constraint("Symmetric", 11, 3, 67, 3, -2),
    Sketcher.Constraint("Symmetric", 9, 3, 69, 3, -2),
    Sketcher.Constraint("Symmetric", 7, 3, 71, 3, -2),
    Sketcher.Constraint("Symmetric", 4, 3, 74, 3, -2),
    Sketcher.Constraint("Symmetric", 2, 3, 76, 3, -2),
    Sketcher.Constraint("Symmetric", 78, 2, 81, 2, -2),
    Sketcher.Constraint("Horizontal", 2, 3, 4, 3),
    Sketcher.Constraint("Horizontal", 1, 3, 5, 3),
    Sketcher.Constraint("Horizontal", 4, 3, 8, 3),
    Sketcher.Constraint("Horizontal", 3, 3, 9, 3),
    Sketcher.Constraint("Horizontal", 8, 3, 10, 3),
    Sketcher.Constraint("Horizontal", 7, 3, 11, 3),
    Sketcher.Constraint("Horizontal", 10, 3, 14, 3),
    Sketcher.Constraint("Horizontal", 9, 3, 15, 3),
    Sketcher.Constraint("Horizontal", 14, 3, 16, 3),
    Sketcher.Constraint("Horizontal", 13, 3, 17, 3),
    Sketcher.Constraint("Horizontal", 16, 3, 20, 3),
    Sketcher.Constraint("Horizontal", 15, 3, 21, 3),
    Sketcher.Constraint("Horizontal", 20, 3, 22, 3),
    Sketcher.Constraint("Horizontal", 19, 3, 23, 3),
    Sketcher.Constraint("Horizontal", 22, 3, 26, 3),
    Sketcher.Constraint("Horizontal", 21, 3, 27, 3),
    Sketcher.Constraint("Horizontal", 26, 3, 28, 3),
    Sketcher.Constraint("Horizontal", 25, 3, 29, 3),
    Sketcher.Constraint("Horizontal", 28, 3, 32, 3),
    Sketcher.Constraint("Horizontal", 27, 3, 33, 3),
    Sketcher.Constraint("Horizontal", 32, 3, 34, 3),
    Sketcher.Constraint("Horizontal", 31, 3, 35, 3),
    Sketcher.Constraint("Horizontal", 34, 3, 38, 3),
    Sketcher.Constraint("Horizontal", 33, 3, 39, 3),
    Sketcher.Constraint("Horizontal", 76, 3, 0, 2),
    Sketcher.Constraint("Equal", 6, 12),
    Sketcher.Constraint("Equal", 12, 18),
    Sketcher.Constraint("Equal", 18, 24),
    Sketcher.Constraint("Equal", 24, 30),
    Sketcher.Constraint("Equal", 30, 36),
    Sketcher.Constraint("Radius", 2, Q("1 mm")),
    Sketcher.Constraint("DistanceX", 80, 1, 80, 2, Q("26 mm")),
    Sketcher.Constraint("Radius", 1, Q("0.15 mm")),
    Sketcher.Constraint("DistanceX", -1, 1, 3, 3, Q("12 mm")),
    Sketcher.Constraint("Radius", 3, Q("0.555 mm")),
    Sketcher.Constraint("DistanceY", 79, 1, 79, 2, Q("0.63 mm")),
    Sketcher.Constraint("DistanceY", -1, 1, 1, 3, Q("1.5 mm")),
    Sketcher.Constraint("DistanceX", -1, 1, 2, 3, Q("11.6 mm")),
])
pocket1 = body.newObject("PartDesign::Pocket", "Pocket")
pocket1.Profile = sketch4
pocket1.Length = 6.5
pocket1.Reversed = True

doc.recompute()
